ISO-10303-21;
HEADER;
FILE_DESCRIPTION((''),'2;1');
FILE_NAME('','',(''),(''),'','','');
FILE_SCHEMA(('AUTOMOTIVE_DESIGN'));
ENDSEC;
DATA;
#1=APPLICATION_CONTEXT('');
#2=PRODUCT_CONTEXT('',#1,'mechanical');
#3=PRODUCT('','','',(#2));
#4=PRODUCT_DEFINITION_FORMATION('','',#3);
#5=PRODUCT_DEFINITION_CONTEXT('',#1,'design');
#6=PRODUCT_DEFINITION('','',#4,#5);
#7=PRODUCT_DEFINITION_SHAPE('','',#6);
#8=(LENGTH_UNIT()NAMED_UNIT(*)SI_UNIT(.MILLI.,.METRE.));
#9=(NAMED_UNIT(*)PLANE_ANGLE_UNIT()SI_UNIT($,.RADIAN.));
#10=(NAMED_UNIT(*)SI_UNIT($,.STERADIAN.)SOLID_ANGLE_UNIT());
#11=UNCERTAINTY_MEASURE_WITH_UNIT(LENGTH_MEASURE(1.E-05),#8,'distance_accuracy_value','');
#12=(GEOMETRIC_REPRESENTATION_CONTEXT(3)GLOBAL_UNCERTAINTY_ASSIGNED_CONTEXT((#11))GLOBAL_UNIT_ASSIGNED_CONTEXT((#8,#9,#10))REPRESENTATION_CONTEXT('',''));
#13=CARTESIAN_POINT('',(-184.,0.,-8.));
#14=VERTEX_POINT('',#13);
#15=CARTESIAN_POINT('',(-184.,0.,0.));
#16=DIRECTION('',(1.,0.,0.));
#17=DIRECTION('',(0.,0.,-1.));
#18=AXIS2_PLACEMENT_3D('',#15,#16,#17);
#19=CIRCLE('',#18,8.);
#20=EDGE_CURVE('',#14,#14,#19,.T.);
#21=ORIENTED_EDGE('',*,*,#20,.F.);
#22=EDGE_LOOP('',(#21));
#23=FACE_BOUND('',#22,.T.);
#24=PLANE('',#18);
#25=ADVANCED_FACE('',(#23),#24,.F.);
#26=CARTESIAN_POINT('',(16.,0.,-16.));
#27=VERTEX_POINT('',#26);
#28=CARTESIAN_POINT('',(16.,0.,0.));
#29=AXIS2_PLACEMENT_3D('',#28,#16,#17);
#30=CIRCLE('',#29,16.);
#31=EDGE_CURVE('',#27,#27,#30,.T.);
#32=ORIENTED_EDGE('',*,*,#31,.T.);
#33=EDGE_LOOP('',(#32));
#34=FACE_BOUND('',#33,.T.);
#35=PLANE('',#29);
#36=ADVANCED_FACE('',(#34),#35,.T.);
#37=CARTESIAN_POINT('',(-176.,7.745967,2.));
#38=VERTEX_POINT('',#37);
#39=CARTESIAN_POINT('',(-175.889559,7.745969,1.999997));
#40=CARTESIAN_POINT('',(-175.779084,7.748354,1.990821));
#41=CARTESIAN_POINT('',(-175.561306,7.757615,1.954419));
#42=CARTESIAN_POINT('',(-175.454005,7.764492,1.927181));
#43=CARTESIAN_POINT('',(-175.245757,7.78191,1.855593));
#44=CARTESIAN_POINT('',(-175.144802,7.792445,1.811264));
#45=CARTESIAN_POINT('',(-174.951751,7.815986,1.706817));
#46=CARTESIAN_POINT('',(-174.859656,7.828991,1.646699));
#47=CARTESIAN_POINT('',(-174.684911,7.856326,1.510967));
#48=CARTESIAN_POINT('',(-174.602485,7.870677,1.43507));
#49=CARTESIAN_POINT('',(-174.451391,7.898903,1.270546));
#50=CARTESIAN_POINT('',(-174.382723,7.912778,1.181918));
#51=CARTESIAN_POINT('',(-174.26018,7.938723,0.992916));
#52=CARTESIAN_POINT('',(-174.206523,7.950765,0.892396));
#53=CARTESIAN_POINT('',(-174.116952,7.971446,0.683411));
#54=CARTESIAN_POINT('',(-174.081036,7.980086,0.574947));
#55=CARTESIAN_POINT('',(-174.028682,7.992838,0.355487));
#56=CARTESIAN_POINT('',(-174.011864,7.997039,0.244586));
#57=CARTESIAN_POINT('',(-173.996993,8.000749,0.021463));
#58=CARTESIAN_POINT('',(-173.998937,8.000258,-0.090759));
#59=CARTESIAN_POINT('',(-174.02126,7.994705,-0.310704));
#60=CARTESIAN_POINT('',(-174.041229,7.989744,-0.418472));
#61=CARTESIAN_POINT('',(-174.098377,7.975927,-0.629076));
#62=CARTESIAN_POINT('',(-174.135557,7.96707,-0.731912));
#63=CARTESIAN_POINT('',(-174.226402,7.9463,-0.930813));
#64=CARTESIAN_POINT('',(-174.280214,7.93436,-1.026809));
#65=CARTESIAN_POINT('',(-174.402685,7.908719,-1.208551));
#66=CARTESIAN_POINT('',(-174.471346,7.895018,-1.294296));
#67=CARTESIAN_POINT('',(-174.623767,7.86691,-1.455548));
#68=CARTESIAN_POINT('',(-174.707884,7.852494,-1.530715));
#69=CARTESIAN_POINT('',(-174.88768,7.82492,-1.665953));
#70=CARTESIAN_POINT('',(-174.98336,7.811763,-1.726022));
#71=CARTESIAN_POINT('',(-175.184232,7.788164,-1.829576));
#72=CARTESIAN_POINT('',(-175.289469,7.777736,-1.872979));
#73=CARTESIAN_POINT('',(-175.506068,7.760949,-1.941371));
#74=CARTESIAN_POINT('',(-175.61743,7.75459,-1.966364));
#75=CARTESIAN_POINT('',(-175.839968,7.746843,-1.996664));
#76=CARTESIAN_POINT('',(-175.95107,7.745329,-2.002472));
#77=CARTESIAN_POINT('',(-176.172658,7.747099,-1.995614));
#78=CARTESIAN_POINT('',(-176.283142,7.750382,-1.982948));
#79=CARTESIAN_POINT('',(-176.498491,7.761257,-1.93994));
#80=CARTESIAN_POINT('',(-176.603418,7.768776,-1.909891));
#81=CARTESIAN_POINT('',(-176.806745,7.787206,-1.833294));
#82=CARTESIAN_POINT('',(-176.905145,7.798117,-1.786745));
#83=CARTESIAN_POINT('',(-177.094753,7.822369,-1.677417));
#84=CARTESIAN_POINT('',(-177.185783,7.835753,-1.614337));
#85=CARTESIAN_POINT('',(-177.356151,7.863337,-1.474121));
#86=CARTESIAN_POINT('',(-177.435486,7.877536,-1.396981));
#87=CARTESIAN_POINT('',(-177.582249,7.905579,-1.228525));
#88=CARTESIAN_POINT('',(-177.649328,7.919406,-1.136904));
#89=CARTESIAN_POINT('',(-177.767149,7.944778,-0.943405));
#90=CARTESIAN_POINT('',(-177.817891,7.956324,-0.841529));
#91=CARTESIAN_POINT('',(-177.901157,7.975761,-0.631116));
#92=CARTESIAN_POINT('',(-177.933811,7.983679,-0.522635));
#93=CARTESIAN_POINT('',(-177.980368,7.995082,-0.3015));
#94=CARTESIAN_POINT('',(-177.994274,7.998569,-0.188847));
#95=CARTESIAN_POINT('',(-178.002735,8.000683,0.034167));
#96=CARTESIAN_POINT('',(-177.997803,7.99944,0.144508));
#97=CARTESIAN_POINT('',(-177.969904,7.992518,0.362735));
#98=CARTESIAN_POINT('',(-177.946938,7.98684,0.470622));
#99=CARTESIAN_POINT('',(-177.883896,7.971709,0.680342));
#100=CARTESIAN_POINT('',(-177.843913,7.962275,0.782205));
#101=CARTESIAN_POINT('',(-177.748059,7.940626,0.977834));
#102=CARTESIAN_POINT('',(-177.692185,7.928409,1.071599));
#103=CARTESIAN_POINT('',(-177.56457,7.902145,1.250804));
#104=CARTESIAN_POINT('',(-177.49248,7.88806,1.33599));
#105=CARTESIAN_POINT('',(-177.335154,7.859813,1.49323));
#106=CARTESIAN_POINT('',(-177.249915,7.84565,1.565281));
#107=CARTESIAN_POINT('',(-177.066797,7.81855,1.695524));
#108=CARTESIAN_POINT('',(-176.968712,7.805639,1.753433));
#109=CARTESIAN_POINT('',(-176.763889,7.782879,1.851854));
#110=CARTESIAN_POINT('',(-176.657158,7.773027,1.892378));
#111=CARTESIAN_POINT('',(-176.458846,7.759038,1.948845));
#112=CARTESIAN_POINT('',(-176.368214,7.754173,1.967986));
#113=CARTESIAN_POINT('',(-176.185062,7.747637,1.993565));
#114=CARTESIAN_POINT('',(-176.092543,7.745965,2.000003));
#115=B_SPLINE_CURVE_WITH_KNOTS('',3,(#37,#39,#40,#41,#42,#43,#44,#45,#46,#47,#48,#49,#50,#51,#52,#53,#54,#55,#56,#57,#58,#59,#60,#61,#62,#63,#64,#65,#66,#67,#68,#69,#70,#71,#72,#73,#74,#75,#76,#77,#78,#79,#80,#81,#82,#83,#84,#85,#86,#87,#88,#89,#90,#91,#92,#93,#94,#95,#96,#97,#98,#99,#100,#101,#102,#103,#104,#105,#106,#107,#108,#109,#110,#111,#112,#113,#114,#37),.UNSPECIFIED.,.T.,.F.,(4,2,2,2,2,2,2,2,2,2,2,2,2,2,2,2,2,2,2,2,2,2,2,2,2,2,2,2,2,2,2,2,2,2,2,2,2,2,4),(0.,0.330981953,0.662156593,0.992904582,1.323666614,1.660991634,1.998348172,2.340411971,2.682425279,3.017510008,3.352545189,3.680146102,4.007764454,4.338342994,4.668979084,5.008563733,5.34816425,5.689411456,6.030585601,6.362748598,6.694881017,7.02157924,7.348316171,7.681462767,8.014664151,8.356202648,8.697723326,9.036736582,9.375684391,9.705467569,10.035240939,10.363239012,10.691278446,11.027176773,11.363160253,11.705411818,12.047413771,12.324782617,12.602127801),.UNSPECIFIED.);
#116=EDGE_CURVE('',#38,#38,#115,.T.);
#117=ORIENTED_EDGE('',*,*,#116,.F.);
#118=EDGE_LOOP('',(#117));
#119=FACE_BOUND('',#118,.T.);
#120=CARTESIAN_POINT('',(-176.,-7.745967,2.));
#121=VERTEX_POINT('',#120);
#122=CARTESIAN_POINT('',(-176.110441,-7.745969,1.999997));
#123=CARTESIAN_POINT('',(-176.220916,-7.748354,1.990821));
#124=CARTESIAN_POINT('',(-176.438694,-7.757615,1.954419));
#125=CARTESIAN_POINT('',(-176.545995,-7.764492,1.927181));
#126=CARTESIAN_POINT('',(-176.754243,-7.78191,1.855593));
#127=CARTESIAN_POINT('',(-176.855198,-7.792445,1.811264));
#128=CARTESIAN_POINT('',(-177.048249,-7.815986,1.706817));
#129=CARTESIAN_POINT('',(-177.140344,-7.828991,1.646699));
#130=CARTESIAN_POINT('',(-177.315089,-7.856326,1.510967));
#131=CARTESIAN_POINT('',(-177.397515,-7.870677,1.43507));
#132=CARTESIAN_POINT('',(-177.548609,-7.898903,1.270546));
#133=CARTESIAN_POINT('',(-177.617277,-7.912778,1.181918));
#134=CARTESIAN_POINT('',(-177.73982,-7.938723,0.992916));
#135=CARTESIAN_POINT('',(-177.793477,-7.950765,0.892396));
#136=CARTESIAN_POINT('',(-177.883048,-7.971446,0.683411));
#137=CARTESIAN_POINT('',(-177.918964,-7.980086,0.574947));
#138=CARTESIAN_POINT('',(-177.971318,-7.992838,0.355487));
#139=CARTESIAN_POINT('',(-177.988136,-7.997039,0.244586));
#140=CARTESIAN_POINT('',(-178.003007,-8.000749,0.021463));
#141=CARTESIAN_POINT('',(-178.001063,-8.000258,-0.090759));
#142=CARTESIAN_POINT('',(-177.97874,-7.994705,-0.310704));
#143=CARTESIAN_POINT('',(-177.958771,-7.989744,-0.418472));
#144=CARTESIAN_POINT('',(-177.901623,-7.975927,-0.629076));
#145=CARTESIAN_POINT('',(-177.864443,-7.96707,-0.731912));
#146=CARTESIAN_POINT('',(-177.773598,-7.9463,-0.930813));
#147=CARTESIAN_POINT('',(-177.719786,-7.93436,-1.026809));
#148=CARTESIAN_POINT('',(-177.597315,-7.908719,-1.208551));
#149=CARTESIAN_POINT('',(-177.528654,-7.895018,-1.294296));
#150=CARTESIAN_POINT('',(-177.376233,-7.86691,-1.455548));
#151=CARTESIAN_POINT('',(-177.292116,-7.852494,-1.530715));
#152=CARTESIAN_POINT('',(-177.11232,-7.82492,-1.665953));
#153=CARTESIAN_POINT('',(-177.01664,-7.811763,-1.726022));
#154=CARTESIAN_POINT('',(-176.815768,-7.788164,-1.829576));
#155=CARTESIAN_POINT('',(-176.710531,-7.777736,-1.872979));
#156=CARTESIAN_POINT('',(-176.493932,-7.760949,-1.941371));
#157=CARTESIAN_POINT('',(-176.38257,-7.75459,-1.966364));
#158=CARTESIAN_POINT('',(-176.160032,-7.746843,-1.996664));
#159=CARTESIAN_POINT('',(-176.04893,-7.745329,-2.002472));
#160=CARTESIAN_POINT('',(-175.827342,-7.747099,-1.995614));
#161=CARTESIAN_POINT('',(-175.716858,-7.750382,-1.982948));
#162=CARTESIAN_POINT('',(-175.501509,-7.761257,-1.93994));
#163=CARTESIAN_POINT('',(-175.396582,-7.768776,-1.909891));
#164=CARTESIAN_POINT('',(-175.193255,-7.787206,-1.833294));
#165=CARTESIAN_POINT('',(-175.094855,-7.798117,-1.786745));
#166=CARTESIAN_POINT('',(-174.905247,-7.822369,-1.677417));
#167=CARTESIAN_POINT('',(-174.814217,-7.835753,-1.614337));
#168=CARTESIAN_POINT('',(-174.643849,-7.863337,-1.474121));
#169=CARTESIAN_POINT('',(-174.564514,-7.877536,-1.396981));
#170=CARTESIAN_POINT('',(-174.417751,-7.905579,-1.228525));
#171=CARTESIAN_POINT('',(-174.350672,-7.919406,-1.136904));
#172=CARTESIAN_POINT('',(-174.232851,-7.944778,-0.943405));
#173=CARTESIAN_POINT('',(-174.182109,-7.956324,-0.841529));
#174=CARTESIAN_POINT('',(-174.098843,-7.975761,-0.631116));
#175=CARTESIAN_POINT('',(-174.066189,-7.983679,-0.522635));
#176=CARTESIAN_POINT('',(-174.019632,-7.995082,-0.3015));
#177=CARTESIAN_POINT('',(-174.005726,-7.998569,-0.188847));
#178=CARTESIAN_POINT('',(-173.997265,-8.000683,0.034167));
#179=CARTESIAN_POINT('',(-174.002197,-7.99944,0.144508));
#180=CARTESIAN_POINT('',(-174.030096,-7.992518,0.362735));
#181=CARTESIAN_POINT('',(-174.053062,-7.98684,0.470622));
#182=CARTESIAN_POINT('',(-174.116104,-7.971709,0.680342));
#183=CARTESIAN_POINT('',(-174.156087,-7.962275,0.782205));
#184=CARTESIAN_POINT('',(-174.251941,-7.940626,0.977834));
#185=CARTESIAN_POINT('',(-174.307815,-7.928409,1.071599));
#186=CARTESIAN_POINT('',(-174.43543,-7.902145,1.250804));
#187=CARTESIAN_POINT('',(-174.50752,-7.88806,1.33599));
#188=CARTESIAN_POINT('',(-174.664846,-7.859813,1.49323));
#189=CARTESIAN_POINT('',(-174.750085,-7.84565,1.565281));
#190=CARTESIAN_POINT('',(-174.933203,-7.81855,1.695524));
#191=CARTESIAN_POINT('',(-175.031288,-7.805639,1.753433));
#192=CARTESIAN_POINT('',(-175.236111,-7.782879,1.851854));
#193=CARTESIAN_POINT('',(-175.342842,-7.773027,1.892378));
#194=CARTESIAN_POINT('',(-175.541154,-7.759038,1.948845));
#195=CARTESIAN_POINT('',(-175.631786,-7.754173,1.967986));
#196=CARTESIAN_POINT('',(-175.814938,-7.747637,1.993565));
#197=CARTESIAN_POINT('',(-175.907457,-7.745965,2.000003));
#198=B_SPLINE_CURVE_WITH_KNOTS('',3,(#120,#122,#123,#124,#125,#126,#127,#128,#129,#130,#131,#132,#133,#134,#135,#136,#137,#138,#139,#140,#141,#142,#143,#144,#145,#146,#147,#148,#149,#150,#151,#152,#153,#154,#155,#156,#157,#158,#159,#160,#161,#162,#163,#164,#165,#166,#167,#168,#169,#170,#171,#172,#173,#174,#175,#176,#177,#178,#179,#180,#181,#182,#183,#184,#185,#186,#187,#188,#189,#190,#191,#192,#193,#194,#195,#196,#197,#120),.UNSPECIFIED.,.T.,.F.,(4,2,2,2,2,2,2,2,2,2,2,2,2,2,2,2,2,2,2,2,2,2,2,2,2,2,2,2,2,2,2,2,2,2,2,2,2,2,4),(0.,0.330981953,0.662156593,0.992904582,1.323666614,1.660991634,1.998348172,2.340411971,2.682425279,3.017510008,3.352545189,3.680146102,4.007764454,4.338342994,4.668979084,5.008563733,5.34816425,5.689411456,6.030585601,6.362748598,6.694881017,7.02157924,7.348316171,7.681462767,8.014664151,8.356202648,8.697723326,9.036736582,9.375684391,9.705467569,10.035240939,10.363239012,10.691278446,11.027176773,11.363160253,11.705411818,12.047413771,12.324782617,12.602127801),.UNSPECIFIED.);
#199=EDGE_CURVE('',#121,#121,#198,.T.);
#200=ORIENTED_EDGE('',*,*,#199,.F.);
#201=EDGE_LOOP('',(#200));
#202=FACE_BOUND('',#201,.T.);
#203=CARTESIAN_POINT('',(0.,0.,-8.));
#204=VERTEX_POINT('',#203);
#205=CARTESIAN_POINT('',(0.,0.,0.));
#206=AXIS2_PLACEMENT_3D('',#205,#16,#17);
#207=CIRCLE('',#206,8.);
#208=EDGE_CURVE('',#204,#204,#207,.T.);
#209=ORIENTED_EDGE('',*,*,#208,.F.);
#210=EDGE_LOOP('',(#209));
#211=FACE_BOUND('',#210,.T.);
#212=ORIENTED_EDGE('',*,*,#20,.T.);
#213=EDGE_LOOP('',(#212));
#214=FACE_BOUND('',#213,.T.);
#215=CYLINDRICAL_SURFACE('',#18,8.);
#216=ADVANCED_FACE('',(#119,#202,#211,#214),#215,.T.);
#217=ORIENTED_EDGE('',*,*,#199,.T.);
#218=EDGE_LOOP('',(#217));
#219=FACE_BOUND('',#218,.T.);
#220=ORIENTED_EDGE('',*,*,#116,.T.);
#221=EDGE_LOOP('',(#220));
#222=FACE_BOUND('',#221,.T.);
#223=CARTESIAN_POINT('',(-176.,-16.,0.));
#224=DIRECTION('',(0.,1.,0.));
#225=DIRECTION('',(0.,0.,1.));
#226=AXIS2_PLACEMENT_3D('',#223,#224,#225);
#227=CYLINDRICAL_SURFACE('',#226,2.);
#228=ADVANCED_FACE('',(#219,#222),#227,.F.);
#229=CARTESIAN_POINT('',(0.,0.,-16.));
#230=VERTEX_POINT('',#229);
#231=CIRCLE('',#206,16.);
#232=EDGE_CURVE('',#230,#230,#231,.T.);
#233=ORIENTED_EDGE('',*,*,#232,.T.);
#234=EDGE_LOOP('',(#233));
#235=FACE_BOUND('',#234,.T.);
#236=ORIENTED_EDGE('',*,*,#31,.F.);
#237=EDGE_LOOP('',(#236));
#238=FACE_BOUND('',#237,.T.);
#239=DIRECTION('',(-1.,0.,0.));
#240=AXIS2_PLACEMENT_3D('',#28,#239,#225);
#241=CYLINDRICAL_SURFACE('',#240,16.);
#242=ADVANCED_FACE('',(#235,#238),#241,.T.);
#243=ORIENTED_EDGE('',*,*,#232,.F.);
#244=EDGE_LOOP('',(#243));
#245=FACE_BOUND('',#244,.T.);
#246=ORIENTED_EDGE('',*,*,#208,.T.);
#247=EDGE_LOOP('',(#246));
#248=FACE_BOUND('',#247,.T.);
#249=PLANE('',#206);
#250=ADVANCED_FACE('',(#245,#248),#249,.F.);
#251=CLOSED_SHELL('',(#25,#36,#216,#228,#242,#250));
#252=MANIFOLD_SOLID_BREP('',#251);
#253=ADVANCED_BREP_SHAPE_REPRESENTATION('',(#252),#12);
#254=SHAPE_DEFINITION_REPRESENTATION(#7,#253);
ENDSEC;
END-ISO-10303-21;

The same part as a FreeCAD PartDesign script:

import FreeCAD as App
import Part
import Sketcher

V = App.Vector

doc = App.newDocument("Part")
params = doc.addObject("Spreadsheet::Sheet", "Params")
for row, (alias, value) in enumerate([
    ("sketch1_diameter", "32 mm"),
    ("pad1_length", "16 mm"),
    ("sketch2_diameter", "16 mm"),
    ("pad2_length", "200 mm"),
    ("sketch3_diameter", "4 mm"),
], start=1):
    params.set(f"A{row}", alias)
    params.set(f"B{row}", "=" + value)
    params.setAlias(f"B{row}", alias)

body = doc.addObject("PartDesign::Body", "Body")

# Sketch on YZ plane
sketch1 = body.newObject("Sketcher::SketchObject", "Sketch")
sketch1.AttachmentSupport = (doc.getObject("YZ_Plane"), [""])
sketch1.MapMode = "FlatFace"
sketch1.addGeometry(Part.Circle(V(0, 0, 0), V(0, 0, 1), 16), False)
sketch1.addConstraint([
    Sketcher.Constraint("Coincident", 0, 3, -1, 1),
    Sketcher.Constraint("Diameter", 0, 32.0),
])
sketch1.setExpression("Constraints[1]", "Params.sketch1_diameter")
pad1 = body.newObject("PartDesign::Pad", "Pad")
pad1.Profile = sketch1
pad1.setExpression("Length", "Params.pad1_length")

# Sketch on YZ plane
sketch2 = body.newObject("Sketcher::SketchObject", "Sketch001")
sketch2.AttachmentSupport = (doc.getObject("YZ_Plane"), [""])
sketch2.MapMode = "FlatFace"
sketch2.AttachmentOffset = App.Placement(V(0, 0, 16), App.Rotation())
sketch2.addGeometry(Part.Circle(V(0, 0, 0), V(0, 0, 1), 8), False)
sketch2.addConstraint([
    Sketcher.Constraint("Coincident", 0, 3, -1, 1),
    Sketcher.Constraint("Diameter", 0, 16.0),
])
sketch2.setExpression("Constraints[1]", "Params.sketch2_diameter")
pad2 = body.newObject("PartDesign::Pad", "Pad001")
pad2.Profile = sketch2
pad2.setExpression("Length", "Params.pad2_length")
pad2.Reversed = True

# Sketch on XZ plane
sketch3 = body.newObject("Sketcher::SketchObject", "Sketch002")
sketch3.AttachmentSupport = (doc.getObject("XZ_Plane"), [""])
sketch3.MapMode = "FlatFace"
sketch3.addGeometry(Part.Circle(V(-176, 0, 0), V(0, 0, 1), 2), False)
sketch3.addConstraint([
    Sketcher.Constraint("PointOnObject", 0, 3, -1),
    Sketcher.Constraint("Diameter", 0, 4.0),
    Sketcher.Constraint("DistanceX", 0, 3, -1, 1, 176.0),
])
sketch3.setExpression("Constraints[1]", "Params.sketch3_diameter")
pocket1 = body.newObject("PartDesign::Pocket", "Pocket")
pocket1.Profile = sketch3
pocket1.Type = "ThroughAll"
pocket1.Midplane = True

doc.recompute()
